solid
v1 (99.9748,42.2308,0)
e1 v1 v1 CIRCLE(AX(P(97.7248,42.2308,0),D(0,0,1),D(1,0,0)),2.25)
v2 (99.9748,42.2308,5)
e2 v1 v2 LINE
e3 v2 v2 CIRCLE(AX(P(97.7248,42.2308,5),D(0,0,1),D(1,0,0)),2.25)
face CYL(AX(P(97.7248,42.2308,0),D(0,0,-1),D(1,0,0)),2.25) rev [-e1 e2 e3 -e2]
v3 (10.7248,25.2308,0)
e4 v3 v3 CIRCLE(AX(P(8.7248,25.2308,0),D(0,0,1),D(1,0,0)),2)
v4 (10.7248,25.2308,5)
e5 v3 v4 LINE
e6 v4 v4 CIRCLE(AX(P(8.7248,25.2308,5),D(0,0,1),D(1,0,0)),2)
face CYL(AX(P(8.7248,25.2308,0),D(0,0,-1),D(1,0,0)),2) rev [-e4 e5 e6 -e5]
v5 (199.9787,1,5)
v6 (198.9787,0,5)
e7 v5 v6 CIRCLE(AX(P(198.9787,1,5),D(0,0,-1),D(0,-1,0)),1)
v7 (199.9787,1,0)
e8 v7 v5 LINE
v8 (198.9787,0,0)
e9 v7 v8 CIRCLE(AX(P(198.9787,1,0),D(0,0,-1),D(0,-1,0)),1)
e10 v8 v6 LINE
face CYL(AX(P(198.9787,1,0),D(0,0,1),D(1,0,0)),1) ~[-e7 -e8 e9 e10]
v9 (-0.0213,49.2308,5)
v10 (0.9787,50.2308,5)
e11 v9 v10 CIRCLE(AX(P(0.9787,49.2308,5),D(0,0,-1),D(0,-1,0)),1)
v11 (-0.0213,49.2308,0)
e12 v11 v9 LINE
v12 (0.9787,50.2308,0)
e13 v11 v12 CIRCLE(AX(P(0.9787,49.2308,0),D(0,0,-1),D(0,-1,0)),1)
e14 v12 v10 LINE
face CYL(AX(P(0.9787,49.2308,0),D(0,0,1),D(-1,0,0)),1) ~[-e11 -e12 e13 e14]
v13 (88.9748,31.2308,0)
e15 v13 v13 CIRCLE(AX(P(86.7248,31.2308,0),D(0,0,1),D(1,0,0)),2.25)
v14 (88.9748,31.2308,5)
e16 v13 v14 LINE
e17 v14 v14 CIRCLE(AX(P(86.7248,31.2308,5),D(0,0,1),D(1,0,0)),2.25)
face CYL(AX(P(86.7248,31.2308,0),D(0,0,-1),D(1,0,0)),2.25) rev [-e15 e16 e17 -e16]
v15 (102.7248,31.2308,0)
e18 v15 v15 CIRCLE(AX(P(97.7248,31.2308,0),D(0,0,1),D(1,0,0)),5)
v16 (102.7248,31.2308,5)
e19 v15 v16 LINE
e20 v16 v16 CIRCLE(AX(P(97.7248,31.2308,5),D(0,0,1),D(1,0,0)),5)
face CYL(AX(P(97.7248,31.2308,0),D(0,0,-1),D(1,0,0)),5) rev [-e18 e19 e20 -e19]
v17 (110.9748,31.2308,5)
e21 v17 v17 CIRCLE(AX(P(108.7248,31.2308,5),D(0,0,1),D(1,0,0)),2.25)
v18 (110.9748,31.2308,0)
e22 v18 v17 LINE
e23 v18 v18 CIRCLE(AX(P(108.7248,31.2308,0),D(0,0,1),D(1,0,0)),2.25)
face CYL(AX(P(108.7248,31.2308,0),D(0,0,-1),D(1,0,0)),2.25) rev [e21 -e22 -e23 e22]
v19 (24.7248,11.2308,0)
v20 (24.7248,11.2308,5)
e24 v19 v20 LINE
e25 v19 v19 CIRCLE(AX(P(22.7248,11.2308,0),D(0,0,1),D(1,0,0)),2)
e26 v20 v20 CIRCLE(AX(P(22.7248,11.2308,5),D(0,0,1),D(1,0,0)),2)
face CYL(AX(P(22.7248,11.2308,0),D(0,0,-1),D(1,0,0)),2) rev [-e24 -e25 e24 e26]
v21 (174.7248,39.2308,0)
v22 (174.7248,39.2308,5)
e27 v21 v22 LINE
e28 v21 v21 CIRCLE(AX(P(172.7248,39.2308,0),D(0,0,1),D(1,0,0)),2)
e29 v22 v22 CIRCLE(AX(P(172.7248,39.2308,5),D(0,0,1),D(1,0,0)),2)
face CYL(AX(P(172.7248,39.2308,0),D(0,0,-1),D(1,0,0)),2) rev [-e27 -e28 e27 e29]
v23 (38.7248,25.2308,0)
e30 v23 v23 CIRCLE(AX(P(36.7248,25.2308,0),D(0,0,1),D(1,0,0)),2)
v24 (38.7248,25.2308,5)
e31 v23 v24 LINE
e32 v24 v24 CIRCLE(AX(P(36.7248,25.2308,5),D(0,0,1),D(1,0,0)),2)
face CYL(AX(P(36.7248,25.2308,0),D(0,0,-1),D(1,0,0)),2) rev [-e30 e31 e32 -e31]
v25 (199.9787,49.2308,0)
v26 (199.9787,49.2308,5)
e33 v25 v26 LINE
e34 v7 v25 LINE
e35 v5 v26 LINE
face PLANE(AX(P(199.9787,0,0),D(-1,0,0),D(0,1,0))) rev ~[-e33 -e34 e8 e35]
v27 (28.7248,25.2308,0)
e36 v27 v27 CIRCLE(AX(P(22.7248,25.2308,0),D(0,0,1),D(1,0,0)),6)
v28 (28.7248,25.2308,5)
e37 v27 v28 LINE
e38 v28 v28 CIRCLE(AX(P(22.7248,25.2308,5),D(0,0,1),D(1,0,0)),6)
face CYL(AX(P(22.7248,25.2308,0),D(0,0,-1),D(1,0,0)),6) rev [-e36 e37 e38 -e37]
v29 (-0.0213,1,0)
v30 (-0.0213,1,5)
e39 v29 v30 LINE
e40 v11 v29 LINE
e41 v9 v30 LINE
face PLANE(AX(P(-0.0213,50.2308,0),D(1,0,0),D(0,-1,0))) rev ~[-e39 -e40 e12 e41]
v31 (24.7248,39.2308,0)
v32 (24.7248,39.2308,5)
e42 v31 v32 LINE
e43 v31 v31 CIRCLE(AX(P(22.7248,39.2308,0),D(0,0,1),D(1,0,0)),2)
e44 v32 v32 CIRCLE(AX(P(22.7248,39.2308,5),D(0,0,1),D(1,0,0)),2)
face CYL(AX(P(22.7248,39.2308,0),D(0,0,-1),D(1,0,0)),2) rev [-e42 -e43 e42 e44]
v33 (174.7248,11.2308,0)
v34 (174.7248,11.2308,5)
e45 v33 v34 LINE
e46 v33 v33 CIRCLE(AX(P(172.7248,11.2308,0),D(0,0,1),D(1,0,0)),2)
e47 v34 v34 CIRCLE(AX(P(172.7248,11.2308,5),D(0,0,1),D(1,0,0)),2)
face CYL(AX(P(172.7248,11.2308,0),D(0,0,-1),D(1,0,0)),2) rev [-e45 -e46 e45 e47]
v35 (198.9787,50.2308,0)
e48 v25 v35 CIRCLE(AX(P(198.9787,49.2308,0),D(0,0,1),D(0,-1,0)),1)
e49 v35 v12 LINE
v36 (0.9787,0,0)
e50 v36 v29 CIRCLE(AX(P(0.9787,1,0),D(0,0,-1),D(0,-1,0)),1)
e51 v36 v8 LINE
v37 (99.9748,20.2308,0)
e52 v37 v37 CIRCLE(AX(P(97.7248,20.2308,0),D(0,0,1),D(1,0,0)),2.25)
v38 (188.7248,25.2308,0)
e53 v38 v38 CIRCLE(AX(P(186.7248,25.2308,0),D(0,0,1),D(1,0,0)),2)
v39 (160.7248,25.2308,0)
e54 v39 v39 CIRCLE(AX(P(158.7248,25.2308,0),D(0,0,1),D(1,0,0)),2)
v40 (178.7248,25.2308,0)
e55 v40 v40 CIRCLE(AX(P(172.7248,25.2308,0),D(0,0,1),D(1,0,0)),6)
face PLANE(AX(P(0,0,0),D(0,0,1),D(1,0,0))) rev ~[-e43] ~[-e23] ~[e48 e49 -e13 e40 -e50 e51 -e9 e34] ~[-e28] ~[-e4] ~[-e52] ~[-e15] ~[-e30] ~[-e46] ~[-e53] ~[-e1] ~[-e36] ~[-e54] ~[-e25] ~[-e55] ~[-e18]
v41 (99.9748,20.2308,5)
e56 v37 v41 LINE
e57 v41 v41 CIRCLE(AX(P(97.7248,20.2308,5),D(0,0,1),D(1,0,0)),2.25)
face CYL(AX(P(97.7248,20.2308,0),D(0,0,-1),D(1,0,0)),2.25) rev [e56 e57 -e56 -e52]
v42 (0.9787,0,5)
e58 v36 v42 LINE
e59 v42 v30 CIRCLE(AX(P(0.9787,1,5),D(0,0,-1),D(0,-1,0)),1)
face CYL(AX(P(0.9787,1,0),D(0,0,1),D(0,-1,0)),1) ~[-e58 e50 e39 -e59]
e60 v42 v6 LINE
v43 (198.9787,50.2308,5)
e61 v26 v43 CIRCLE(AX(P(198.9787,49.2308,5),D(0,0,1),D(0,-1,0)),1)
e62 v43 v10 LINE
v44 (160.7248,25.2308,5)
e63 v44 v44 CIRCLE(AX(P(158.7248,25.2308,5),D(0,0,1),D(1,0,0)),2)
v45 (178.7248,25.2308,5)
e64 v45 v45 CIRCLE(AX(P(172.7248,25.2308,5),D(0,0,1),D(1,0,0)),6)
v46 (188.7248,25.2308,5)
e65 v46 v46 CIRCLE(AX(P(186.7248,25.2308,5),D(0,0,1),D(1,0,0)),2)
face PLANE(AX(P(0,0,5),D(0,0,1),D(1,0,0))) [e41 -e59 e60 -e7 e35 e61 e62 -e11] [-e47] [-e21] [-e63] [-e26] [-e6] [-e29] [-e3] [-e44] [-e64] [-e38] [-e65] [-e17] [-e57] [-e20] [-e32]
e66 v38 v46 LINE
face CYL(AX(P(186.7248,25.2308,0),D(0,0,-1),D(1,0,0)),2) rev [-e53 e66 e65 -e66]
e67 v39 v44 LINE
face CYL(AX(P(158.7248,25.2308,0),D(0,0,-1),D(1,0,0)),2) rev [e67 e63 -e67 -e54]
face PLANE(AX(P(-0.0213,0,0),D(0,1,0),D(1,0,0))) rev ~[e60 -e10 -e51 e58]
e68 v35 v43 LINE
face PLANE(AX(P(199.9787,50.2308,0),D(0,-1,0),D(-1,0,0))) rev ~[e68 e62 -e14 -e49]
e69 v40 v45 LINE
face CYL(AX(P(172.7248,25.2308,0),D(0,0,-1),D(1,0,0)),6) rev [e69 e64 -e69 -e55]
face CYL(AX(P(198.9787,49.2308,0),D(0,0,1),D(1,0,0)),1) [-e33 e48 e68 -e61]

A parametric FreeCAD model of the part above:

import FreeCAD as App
import Part
import Sketcher

V = App.Vector


def edges_at(feature, points):
    """Names of the edges that pass closest to the given points."""
    edges = feature.Shape.Edges
    near = lambda p: min(range(len(edges)), key=lambda i: edges[i].distToShape(Part.Vertex(*p))[0])
    return sorted({f"Edge{near(p) + 1}" for p in points})


def add_polygon(sketch, points):
    """Adds a closed chain of lines whose ends are joined by coincident constraints."""
    first, n = sketch.GeometryCount, len(points)
    for a, b in zip(points, points[1:] + points[:1]):
        sketch.addGeometry(Part.LineSegment(App.Vector(*a, 0), App.Vector(*b, 0)), False)
    for i in range(n):
        sketch.addConstraint(Sketcher.Constraint("Coincident", first + i, 2, first + (i + 1) % n, 1))

doc = App.newDocument("Part")
body = doc.addObject("PartDesign::Body", "Body")

# Sketch on XY plane
sketch1 = body.newObject("Sketcher::SketchObject", "Sketch")
sketch1.AttachmentSupport = (doc.getObject("XY_Plane"), [""])
sketch1.MapMode = "FlatFace"
add_polygon(sketch1, [(199.9787, 0), (199.9787, 50.2308), (-0.0213, 50.2308), (-0.0213, 0)])  # lines 0-3
sketch1.addGeometry(Part.Circle(V(22.7248, 11.2308, 0), V(0, 0, 1), 2), False)  # 4
sketch1.addGeometry(Part.Circle(V(97.7248, 20.2308, 0), V(0, 0, 1), 2.25), False)  # 5
sketch1.addGeometry(Part.Circle(V(172.7248, 11.2308, 0), V(0, 0, 1), 2), False)  # 6
sketch1.addGeometry(Part.Circle(V(8.7248, 25.2308, 0), V(0, 0, 1), 2), False)  # 7
sketch1.addGeometry(Part.Circle(V(22.7248, 25.2308, 0), V(0, 0, 1), 6), False)  # 8
sketch1.addGeometry(Part.Circle(V(36.7248, 25.2308, 0), V(0, 0, 1), 2), False)  # 9
sketch1.addGeometry(Part.Circle(V(86.7248, 31.2308, 0), V(0, 0, 1), 2.25), False)  # 10
sketch1.addGeometry(Part.Circle(V(97.7248, 31.2308, 0), V(0, 0, 1), 5), False)  # 11
sketch1.addGeometry(Part.Circle(V(22.7248, 39.2308, 0), V(0, 0, 1), 2), False)  # 12
sketch1.addGeometry(Part.Circle(V(97.7248, 42.2308, 0), V(0, 0, 1), 2.25), False)  # 13
sketch1.addGeometry(Part.Circle(V(108.7248, 31.2308, 0), V(0, 0, 1), 2.25), False)  # 14
sketch1.addGeometry(Part.Circle(V(158.7248, 25.2308, 0), V(0, 0, 1), 2), False)  # 15
sketch1.addGeometry(Part.Circle(V(172.7248, 25.2308, 0), V(0, 0, 1), 6), False)  # 16
sketch1.addGeometry(Part.Circle(V(186.7248, 25.2308, 0), V(0, 0, 1), 2), False)  # 17
sketch1.addGeometry(Part.Circle(V(172.7248, 39.2308, 0), V(0, 0, 1), 2), False)  # 18
sketch1.addConstraint([
    Sketcher.Constraint("Vertical", 0),
    Sketcher.Constraint("Horizontal", 1),
    Sketcher.Constraint("Vertical", 2),
    Sketcher.Constraint("Horizontal", 3),
    Sketcher.Constraint("Equal", 4, 6),
    Sketcher.Constraint("Equal", 6, 7),
    Sketcher.Constraint("Equal", 7, 9),
    Sketcher.Constraint("Equal", 5, 10),
    Sketcher.Constraint("Equal", 9, 12),
    Sketcher.Constraint("Equal", 10, 13),
    Sketcher.Constraint("Equal", 13, 14),
    Sketcher.Constraint("Equal", 12, 15),
    Sketcher.Constraint("Equal", 8, 16),
    Sketcher.Constraint("Equal", 15, 17),
    Sketcher.Constraint("Equal", 17, 18),
    Sketcher.Constraint("PointOnObject", 2, 2, -1),
    Sketcher.Constraint("Horizontal", 4, 3, 6, 3),
    Sketcher.Constraint("Horizontal", 7, 3, 8, 3),
    Sketcher.Constraint("Horizontal", 8, 3, 9, 3),
    Sketcher.Constraint("Horizontal", 10, 3, 11, 3),
    Sketcher.Constraint("Horizontal", 11, 3, 14, 3),
    Sketcher.Constraint("Horizontal", 9, 3, 15, 3),
    Sketcher.Constraint("Horizontal", 15, 3, 16, 3),
    Sketcher.Constraint("Horizontal", 16, 3, 17, 3),
    Sketcher.Constraint("Horizontal", 12, 3, 18, 3),
    Sketcher.Constraint("Vertical", 4, 3, 8, 3),
    Sketcher.Constraint("Vertical", 5, 3, 11, 3),
    Sketcher.Constraint("Vertical", 8, 3, 12, 3),
    Sketcher.Constraint("Vertical", 11, 3, 13, 3),
    Sketcher.Constraint("Vertical", 6, 3, 16, 3),
    Sketcher.Constraint("Vertical", 16, 3, 18, 3),
    Sketcher.Constraint("Diameter", 4, 4.0),
    Sketcher.Constraint("Diameter", 8, 12.0),
    Sketcher.Constraint("Diameter", 11, 10.0),
    Sketcher.Constraint("Diameter", 5, 4.5),
    Sketcher.Constraint("DistanceX", 1, 2, 1, 1, 200.0),
    Sketcher.Constraint("DistanceX", 4, 3, 5, 3, 75.0),
    Sketcher.Constraint("DistanceY", 4, 3, 5, 3, 9.0),
    Sketcher.Constraint("DistanceX", 5, 3, 6, 3, 75.0),
    Sketcher.Constraint("DistanceX", 7, 3, 4, 3, 14.0),
    Sketcher.Constraint("DistanceY", 4, 3, 7, 3, 14.0),
    Sketcher.Constraint("DistanceX", 8, 3, 9, 3, 14.0),
    Sketcher.Constraint("DistanceX", 10, 3, 5, 3, 11.0),
    Sketcher.Constraint("DistanceY", 5, 3, 10, 3, 11.0),
    Sketcher.Constraint("DistanceY", 8, 3, 12, 3, 14.0),
    Sketcher.Constraint("DistanceY", 11, 3, 13, 3, 11.0),
    Sketcher.Constraint("DistanceX", 11, 3, 14, 3, 11.0),
    Sketcher.Constraint("DistanceX", 15, 3, 6, 3, 14.0),
    Sketcher.Constraint("DistanceX", 16, 3, 17, 3, 14.0),
    Sketcher.Constraint("DistanceY", 17, 3, 0, 2, 25.0),
    Sketcher.Constraint("DistanceY", 0, 1, 0, 2, 50.2308),
    Sketcher.Constraint("DistanceX", 17, 3, 0, 2, 13.254),
    Sketcher.Constraint("DistanceX", -1, 1, 4, 3, 22.7248),
])
pad1 = body.newObject("PartDesign::Pad", "Pad")
pad1.Profile = sketch1
pad1.Length = 5
doc.recompute()

fillet = body.newObject("PartDesign::Fillet", "Fillet")
fillet.Base = (pad1, edges_at(pad1, [(199.979, 50.231, 2.5)]))
fillet.Radius = 1
doc.recompute()

fillet2 = body.newObject("PartDesign::Fillet", "Fillet001")
fillet2.Base = (fillet, edges_at(fillet, [(199.979, 0, 2.5)]))
fillet2.Radius = 1
doc.recompute()

fillet3 = body.newObject("PartDesign::Fillet", "Fillet002")
fillet3.Base = (fillet2, edges_at(fillet2, [(-0.021, 0, 2.5)]))
fillet3.Radius = 1
doc.recompute()

fillet4 = body.newObject("PartDesign::Fillet", "Fillet003")
fillet4.Base = (fillet3, edges_at(fillet3, [(-0.021, 50.231, 2.5)]))
fillet4.Radius = 1

doc.recompute()
